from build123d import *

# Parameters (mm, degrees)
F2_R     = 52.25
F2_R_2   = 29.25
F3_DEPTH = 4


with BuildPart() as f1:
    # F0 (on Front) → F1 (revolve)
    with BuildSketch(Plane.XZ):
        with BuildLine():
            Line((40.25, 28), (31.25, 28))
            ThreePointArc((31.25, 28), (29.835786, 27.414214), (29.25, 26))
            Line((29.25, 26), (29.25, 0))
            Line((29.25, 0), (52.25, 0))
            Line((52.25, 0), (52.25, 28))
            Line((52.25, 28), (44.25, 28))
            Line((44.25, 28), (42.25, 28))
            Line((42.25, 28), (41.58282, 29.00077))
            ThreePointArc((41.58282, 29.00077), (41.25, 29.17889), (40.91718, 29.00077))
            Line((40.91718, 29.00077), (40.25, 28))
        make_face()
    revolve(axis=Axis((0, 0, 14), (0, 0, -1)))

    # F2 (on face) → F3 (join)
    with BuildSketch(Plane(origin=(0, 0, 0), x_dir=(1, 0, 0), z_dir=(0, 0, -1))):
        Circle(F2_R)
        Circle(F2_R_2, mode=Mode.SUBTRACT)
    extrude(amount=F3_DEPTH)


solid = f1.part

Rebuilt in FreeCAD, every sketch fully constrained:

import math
import FreeCAD as App
import Part
import Sketcher
from FreeCAD import Vector
Q = App.Units.Quantity

doc = App.newDocument("Part")
body = doc.addObject("PartDesign::Body", "Body")

# Sketch on XZ plane
sketch1 = doc.addObject("Sketcher::SketchObject", "Sketch")
body.addObject(sketch1)
sketch1.AttachmentSupport = (doc.XZ_Plane, [""])
sketch1.MapMode = "FlatFace"
sketch1.addGeometry([
    Part.LineSegment(Vector(40.25, 28, 0), Vector(31.25, 28, 0)),  # 0
    Part.ArcOfCircle(Part.Circle(Vector(31.25, 26, 0), Vector(0, 0, 1), 2), math.radians(90), math.radians(180)),  # 1
    Part.LineSegment(Vector(29.25, 26, 0), Vector(29.25, 0, 0)),  # 2
    Part.LineSegment(Vector(29.25, 0, 0), Vector(52.25, 0, 0)),  # 3
    Part.LineSegment(Vector(52.25, 0, 0), Vector(52.25, 28, 0)),  # 4
    Part.LineSegment(Vector(52.25, 28, 0), Vector(42.25, 28, 0)),  # 5
    Part.LineSegment(Vector(42.25, 28, 0), Vector(41.58, 29, 0)),  # 6
    Part.ArcOfCircle(Part.Circle(Vector(41.25, 28.78, 0), Vector(0, 0, 1), 0.4), math.radians(34), math.radians(146)),  # 7
    Part.LineSegment(Vector(40.92, 29, 0), Vector(40.25, 28, 0)),  # 8
], False)
sketch1.addConstraint([
    Sketcher.Constraint("Tangent", 0, 2, 1, 1),
    Sketcher.Constraint("Tangent", 1, 2, 2, 1),
    Sketcher.Constraint("Coincident", 2, 2, 3, 1),
    Sketcher.Constraint("Coincident", 3, 2, 4, 1),
    Sketcher.Constraint("Coincident", 4, 2, 5, 1),
    Sketcher.Constraint("Coincident", 5, 2, 6, 1),
    Sketcher.Constraint("Tangent", 6, 2, 7, 1),
    Sketcher.Constraint("Tangent", 7, 2, 8, 1),
    Sketcher.Constraint("Coincident", 8, 2, 0, 1),
    Sketcher.Constraint("Horizontal", 0),
    Sketcher.Constraint("Vertical", 2),
    Sketcher.Constraint("Horizontal", 3),
    Sketcher.Constraint("Vertical", 4),
    Sketcher.Constraint("Horizontal", 5),
    Sketcher.Constraint("PointOnObject", 2, 2, -1),
    Sketcher.Constraint("Horizontal", 0, 2, 4, 2),
    Sketcher.Constraint("Horizontal", 6, 2, 7, 2),
    Sketcher.Constraint("Radius", 1, Q("1.999999 mm")),
    Sketcher.Constraint("Radius", 7, Q("0.4 mm")),
    Sketcher.Constraint("DistanceX", 0, 2, 0, 1, Q("9 mm")),
    Sketcher.Constraint("DistanceX", 3, 1, 3, 2, Q("23 mm")),
    Sketcher.Constraint("DistanceX", 5, 2, 5, 1, Q("10 mm")),
    Sketcher.Constraint("DistanceY", 2, 2, 2, 1, Q("26 mm")),
    Sketcher.Constraint("DistanceX", -1, 1, 1, 3, Q("31.249999 mm")),
    Sketcher.Constraint("DistanceY", -1, 1, 7, 3, Q("28.77889 mm")),
])
revolution = doc.addObject("PartDesign::Revolution", "Revolution")
body.addObject(revolution)
revolution.Profile = sketch1
revolution.ReferenceAxis = (sketch1, ["V_Axis"])
revolution.Angle = 360

# Sketch on XY plane
sketch2 = doc.addObject("Sketcher::SketchObject", "Sketch001")
body.addObject(sketch2)
sketch2.AttachmentSupport = (doc.XY_Plane, [""])
sketch2.MapMode = "FlatFace"
sketch2.addGeometry([
    Part.Circle(Vector(0, 0, 0), Vector(0, 0, 1), 52),
    Part.Circle(Vector(0, 0, 0), Vector(0, 0, 1), 29),
], False)
sketch2.addConstraint([
    Sketcher.Constraint("Coincident", 0, 3, -1, 1),
    Sketcher.Constraint("Coincident", 1, 3, -1, 1),
    Sketcher.Constraint("Diameter", 0, Q("104.5 mm")),
    Sketcher.Constraint("Diameter", 1, Q("58.5 mm")),
])
pad1 = doc.addObject("PartDesign::Pad", "Pad")
body.addObject(pad1)
pad1.Profile = sketch2
pad1.Length = 4
pad1.Reversed = True

doc.recompute()
